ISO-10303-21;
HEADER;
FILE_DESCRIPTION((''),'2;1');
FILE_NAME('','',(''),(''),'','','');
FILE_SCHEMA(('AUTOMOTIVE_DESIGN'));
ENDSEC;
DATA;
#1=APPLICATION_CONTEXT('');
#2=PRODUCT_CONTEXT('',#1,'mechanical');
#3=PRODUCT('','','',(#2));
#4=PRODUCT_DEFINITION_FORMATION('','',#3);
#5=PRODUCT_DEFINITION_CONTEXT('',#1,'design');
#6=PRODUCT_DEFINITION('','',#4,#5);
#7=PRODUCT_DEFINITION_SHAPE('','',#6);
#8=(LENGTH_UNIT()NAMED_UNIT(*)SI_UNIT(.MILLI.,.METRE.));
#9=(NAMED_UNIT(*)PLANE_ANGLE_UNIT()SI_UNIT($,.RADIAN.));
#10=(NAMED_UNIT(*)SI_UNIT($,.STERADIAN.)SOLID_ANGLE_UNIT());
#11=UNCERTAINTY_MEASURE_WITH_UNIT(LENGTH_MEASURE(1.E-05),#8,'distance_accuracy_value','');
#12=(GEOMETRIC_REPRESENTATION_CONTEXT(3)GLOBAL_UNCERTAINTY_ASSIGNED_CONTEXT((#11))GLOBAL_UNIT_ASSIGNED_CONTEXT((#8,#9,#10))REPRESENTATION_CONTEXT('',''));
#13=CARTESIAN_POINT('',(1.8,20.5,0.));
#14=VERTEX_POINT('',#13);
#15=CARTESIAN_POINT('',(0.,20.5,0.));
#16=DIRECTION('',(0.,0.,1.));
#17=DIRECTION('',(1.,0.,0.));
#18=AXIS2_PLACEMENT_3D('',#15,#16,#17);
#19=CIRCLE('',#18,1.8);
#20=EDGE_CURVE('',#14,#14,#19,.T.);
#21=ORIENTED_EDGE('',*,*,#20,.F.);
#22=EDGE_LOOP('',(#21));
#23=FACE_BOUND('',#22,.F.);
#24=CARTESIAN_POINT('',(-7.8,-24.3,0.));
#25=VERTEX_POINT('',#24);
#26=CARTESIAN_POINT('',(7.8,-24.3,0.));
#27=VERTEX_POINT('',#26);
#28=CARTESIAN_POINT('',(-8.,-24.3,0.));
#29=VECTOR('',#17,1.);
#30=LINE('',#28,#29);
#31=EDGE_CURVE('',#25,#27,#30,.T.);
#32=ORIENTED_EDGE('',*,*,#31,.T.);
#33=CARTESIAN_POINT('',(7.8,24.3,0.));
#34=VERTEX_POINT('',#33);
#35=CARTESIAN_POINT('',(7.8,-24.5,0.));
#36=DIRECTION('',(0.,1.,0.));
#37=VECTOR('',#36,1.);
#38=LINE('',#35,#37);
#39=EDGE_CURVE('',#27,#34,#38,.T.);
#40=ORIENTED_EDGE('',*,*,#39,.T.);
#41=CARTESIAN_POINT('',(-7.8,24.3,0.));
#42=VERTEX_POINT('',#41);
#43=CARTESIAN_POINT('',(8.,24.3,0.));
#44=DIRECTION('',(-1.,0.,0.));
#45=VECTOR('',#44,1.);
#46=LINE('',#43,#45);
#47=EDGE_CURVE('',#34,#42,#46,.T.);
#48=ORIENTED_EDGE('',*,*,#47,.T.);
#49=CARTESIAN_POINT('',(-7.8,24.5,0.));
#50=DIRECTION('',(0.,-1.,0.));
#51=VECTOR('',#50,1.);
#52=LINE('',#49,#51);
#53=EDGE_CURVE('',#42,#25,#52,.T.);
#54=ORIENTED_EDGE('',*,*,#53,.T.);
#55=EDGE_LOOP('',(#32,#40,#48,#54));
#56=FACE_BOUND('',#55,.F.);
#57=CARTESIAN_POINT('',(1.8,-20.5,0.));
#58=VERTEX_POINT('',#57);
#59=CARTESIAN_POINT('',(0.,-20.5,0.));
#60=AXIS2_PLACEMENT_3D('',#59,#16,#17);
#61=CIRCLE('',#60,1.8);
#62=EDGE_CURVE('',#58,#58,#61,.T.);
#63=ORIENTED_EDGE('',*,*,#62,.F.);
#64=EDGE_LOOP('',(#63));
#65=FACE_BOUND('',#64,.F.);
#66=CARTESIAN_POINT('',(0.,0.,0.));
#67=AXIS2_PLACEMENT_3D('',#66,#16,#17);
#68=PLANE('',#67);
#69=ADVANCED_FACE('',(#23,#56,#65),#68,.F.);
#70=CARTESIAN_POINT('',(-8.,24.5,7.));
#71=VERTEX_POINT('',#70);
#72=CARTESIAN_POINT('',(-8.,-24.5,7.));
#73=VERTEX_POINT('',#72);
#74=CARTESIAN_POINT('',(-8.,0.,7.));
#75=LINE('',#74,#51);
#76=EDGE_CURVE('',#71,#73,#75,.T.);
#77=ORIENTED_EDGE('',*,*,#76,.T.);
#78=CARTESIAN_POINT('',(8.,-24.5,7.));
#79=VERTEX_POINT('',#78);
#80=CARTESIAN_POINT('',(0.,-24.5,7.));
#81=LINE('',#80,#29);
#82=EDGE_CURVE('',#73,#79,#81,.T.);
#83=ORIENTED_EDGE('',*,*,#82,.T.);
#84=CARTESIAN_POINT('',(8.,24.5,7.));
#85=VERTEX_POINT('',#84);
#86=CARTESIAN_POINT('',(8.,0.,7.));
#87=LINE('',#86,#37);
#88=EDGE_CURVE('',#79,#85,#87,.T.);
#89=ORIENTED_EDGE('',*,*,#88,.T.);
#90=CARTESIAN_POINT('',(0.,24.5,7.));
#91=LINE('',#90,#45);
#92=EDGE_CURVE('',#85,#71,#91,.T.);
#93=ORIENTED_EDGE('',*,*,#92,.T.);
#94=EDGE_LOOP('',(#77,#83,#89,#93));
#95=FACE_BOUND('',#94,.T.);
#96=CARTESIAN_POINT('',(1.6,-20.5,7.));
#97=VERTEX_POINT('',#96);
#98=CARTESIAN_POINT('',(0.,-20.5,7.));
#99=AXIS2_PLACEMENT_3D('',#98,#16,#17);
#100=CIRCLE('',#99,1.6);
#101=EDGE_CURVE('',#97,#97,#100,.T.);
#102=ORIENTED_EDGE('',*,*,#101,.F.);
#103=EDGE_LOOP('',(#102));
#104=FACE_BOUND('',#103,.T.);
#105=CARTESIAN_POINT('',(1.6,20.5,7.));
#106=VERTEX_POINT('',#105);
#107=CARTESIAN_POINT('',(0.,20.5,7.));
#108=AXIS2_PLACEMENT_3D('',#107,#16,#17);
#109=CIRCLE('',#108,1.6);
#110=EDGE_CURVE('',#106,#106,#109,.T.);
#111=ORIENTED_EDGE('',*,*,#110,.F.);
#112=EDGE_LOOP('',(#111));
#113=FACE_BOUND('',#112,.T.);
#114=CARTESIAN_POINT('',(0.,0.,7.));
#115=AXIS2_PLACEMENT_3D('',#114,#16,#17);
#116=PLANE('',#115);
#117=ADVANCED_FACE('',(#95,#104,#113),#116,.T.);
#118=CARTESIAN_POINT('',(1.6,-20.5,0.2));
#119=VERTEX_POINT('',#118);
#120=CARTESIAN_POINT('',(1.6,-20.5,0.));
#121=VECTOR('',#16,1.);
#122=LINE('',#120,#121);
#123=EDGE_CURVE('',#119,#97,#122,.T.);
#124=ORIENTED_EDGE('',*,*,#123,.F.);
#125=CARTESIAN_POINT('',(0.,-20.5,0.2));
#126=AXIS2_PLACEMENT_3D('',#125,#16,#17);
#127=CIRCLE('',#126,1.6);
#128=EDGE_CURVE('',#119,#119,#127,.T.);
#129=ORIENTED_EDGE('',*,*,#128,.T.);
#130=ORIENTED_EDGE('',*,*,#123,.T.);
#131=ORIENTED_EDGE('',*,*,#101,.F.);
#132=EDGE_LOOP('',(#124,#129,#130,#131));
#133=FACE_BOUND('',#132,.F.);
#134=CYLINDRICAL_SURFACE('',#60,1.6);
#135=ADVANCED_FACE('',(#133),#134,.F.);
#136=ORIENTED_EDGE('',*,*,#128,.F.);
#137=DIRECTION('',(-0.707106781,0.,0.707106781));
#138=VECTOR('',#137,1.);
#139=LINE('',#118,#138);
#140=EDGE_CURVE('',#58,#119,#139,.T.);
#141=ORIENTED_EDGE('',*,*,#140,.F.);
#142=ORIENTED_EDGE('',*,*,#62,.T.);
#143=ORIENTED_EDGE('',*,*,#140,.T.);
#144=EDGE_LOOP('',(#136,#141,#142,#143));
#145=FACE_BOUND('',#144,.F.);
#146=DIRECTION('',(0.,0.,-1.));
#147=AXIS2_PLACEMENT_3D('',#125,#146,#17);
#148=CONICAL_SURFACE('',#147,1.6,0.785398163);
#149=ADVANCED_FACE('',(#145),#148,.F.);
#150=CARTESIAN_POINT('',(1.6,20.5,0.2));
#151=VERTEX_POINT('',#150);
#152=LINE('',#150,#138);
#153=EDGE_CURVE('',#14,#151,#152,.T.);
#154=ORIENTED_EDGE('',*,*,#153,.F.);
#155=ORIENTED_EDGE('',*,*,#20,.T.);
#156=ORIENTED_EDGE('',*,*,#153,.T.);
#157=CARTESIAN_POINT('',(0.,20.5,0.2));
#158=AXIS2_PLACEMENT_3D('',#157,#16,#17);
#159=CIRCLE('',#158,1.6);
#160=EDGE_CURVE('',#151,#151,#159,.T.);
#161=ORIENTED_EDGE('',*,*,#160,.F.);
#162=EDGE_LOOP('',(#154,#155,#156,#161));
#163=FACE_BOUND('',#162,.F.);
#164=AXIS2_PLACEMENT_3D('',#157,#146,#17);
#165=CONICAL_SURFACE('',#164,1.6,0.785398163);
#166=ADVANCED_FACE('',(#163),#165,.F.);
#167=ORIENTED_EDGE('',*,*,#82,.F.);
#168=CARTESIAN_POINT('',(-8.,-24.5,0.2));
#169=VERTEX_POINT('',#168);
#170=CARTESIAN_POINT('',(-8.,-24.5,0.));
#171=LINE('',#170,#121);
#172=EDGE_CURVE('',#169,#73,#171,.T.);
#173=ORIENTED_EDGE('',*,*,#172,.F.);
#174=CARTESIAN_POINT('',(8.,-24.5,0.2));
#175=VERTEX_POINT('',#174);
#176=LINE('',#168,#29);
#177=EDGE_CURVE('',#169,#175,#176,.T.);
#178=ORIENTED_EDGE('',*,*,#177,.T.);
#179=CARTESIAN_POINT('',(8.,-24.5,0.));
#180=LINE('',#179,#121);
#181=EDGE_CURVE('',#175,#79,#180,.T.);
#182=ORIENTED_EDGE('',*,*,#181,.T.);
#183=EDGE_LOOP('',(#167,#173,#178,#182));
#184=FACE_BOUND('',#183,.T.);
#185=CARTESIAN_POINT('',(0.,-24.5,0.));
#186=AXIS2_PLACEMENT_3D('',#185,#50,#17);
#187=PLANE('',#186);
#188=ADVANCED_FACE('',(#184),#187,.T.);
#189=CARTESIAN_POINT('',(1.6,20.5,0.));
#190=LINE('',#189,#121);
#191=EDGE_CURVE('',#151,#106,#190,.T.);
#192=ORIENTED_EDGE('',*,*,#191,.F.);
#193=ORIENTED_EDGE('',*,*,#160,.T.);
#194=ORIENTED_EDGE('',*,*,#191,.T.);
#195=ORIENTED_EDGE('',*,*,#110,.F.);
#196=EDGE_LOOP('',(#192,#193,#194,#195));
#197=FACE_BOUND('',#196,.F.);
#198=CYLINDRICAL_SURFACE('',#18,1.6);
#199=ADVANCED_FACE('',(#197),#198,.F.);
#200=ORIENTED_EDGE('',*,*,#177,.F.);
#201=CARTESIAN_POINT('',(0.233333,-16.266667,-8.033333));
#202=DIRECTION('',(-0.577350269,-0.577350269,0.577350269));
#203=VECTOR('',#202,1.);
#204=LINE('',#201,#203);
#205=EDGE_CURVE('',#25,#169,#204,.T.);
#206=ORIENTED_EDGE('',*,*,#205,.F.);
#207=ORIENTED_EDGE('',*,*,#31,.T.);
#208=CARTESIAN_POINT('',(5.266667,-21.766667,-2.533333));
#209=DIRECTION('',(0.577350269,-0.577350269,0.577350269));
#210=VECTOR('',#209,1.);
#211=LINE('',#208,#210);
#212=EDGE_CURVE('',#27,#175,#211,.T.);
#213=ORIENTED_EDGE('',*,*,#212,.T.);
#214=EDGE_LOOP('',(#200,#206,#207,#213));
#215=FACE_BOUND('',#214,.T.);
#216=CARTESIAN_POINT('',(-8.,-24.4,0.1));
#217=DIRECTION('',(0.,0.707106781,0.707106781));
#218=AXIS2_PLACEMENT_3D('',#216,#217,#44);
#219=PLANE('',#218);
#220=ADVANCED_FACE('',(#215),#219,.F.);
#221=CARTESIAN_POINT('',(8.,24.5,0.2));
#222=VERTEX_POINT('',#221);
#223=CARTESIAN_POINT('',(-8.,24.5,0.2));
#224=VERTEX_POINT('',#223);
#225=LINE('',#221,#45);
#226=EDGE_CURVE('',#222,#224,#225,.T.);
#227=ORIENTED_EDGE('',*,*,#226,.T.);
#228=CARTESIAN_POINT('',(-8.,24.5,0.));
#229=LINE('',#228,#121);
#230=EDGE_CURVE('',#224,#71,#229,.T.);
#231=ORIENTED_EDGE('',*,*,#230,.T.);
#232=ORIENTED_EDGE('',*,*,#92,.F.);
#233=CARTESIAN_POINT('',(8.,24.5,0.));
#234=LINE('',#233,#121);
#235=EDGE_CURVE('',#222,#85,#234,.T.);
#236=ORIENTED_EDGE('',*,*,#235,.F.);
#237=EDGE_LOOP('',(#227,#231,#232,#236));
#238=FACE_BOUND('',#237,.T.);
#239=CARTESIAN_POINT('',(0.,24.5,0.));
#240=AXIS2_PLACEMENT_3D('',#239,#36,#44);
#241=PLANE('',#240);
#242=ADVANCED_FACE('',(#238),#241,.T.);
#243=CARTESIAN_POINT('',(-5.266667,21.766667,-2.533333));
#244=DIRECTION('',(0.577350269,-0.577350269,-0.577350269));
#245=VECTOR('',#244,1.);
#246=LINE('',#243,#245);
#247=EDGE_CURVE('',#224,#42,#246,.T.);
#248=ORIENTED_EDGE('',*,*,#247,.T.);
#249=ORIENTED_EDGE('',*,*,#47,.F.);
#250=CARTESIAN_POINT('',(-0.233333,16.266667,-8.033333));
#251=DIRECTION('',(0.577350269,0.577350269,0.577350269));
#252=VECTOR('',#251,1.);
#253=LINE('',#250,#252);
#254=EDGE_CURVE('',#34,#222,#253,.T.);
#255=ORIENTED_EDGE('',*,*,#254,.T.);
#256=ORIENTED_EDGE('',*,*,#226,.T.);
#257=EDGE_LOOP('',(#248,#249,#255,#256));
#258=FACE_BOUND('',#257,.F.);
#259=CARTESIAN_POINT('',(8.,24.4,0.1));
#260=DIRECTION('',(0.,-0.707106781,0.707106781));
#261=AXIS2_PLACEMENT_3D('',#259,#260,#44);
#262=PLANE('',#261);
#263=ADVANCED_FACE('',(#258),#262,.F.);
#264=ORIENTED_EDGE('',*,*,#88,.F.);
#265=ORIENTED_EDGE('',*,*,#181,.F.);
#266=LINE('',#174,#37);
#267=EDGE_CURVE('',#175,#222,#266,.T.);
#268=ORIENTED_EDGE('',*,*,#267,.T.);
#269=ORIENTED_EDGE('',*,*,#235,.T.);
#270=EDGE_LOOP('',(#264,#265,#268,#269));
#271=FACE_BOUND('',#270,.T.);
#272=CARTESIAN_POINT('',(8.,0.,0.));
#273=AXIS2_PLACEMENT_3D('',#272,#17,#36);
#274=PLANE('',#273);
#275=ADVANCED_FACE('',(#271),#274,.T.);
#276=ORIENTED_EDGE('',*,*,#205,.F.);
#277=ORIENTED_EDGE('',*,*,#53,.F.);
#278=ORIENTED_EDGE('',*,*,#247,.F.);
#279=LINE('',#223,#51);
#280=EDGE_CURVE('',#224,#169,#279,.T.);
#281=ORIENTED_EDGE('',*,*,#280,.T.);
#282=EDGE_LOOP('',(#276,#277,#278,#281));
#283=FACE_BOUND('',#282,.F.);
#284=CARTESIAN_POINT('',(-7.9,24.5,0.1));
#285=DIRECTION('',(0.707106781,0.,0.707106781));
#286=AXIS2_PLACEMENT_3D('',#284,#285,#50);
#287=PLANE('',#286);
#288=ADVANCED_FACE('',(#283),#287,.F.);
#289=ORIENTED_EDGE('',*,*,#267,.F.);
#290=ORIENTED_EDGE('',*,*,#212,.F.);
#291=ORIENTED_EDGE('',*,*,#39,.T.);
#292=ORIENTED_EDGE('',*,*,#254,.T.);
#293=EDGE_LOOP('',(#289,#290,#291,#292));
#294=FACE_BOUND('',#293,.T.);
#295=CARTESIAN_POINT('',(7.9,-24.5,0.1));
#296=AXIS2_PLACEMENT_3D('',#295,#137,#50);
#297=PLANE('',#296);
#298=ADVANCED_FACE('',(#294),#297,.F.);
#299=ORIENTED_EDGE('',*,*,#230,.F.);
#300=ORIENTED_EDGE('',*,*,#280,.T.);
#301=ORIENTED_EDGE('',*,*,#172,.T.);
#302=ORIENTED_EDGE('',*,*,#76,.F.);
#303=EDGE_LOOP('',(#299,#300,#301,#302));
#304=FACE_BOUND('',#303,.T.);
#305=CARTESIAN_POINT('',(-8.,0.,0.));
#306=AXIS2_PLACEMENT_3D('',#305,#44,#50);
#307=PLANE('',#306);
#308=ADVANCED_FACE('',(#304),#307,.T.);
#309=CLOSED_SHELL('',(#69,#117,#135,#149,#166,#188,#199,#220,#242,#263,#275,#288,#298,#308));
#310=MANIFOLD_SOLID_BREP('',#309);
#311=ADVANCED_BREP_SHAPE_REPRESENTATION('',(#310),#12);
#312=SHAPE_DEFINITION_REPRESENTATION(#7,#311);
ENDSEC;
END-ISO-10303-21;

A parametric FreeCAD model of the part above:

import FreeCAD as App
import Part
import Sketcher

V = App.Vector


def edges_at(feature, points):
    """Names of the edges that pass closest to the given points."""
    edges = feature.Shape.Edges
    near = lambda p: min(range(len(edges)), key=lambda i: edges[i].distToShape(Part.Vertex(*p))[0])
    return sorted({f"Edge{near(p) + 1}" for p in points})


def add_polygon(sketch, points):
    """Adds a closed chain of lines whose ends are joined by coincident constraints."""
    first, n = sketch.GeometryCount, len(points)
    for a, b in zip(points, points[1:] + points[:1]):
        sketch.addGeometry(Part.LineSegment(App.Vector(*a, 0), App.Vector(*b, 0)), False)
    for i in range(n):
        sketch.addConstraint(Sketcher.Constraint("Coincident", first + i, 2, first + (i + 1) % n, 1))

doc = App.newDocument("Part")
params = doc.addObject("Spreadsheet::Sheet", "Params")
for row, (alias, value) in enumerate([
    ("sketch1_diameter", "3.2 mm"),
    ("sketch1_width", "16 mm"),
    ("sketch1_height", "49 mm"),
    ("sketch2_height", "7 mm"),
    ("chamfer_size", "0.2 mm"),
], start=1):
    params.set(f"A{row}", alias)
    params.set(f"B{row}", "=" + value)
    params.setAlias(f"B{row}", alias)

body = doc.addObject("PartDesign::Body", "Body")

# Sketch on XY plane
sketch1 = doc.addObject("Sketcher::SketchObject", "Sketch")
body.addObject(sketch1)
sketch1.AttachmentSupport = (doc.XY_Plane, [""])
sketch1.MapMode = "FlatFace"
add_polygon(sketch1, [(-8, 24.5), (-8, -24.5), (8, -24.5), (8, 24.5)])  # lines 0-3
sketch1.addGeometry(Part.Circle(V(0, -20.5, 0), V(0, 0, 1), 1.6), False)  # 4
sketch1.addGeometry(Part.Circle(V(0, 20.5, 0), V(0, 0, 1), 1.6), False)  # 5
sketch1.addConstraint([
    Sketcher.Constraint("Vertical", 0),
    Sketcher.Constraint("Horizontal", 1),
    Sketcher.Constraint("Vertical", 2),
    Sketcher.Constraint("Horizontal", 3),
    Sketcher.Constraint("Equal", 4, 5),
    Sketcher.Constraint("Symmetric", 4, 3, 5, 3, -1, 1),
    Sketcher.Constraint("Symmetric", 0, 2, 2, 2, -1, 1),
    Sketcher.Constraint("PointOnObject", 4, 3, -2),
    Sketcher.Constraint("Diameter", 4, 3.2),
    Sketcher.Constraint("DistanceX", 1, 1, 1, 2, 16.0),
    Sketcher.Constraint("DistanceY", 0, 2, 0, 1, 49.0),
    Sketcher.Constraint("DistanceY", 4, 3, 5, 3, 41.0),
])
sketch1.setExpression("Constraints[12]", "Params.sketch1_diameter")
sketch1.setExpression("Constraints[13]", "Params.sketch1_width")
sketch1.setExpression("Constraints[14]", "Params.sketch1_height")

# Sketch on XZ plane
sketch2 = doc.addObject("Sketcher::SketchObject", "Sketch001")
body.addObject(sketch2)
sketch2.AttachmentSupport = (doc.XZ_Plane, [""])
sketch2.MapMode = "FlatFace"
sketch2.addGeometry(Part.LineSegment(V(0, 0, 0), V(0, 7, 0)), False)
sketch2.addConstraint([
    Sketcher.Constraint("Vertical", 0),
    Sketcher.Constraint("Coincident", 0, 1, -1, 1),
    Sketcher.Constraint("DistanceY", 0, 1, 0, 2, 7.0),
])
sketch2.setExpression("Constraints[2]", "Params.sketch2_height")
doc.recompute()

additivepipe = doc.addObject("PartDesign::AdditivePipe", "AdditivePipe")
body.addObject(additivepipe)
additivepipe.Profile = sketch1
additivepipe.Spine = (sketch2, ["Edge1"])
doc.recompute()

chamfer = doc.addObject("PartDesign::Chamfer", "Chamfer")
body.addObject(chamfer)
chamfer.Base = (additivepipe, edges_at(additivepipe, [
    (8, 0, 0),
    (0, -24.5, 0),
    (0, 24.5, 0),
    (-8, 0, 0),
    (-1.6, -20.5, 0),
    (-1.6, 20.5, 0),
]))
chamfer.setExpression("Size", "Params.chamfer_size")

doc.recompute()
